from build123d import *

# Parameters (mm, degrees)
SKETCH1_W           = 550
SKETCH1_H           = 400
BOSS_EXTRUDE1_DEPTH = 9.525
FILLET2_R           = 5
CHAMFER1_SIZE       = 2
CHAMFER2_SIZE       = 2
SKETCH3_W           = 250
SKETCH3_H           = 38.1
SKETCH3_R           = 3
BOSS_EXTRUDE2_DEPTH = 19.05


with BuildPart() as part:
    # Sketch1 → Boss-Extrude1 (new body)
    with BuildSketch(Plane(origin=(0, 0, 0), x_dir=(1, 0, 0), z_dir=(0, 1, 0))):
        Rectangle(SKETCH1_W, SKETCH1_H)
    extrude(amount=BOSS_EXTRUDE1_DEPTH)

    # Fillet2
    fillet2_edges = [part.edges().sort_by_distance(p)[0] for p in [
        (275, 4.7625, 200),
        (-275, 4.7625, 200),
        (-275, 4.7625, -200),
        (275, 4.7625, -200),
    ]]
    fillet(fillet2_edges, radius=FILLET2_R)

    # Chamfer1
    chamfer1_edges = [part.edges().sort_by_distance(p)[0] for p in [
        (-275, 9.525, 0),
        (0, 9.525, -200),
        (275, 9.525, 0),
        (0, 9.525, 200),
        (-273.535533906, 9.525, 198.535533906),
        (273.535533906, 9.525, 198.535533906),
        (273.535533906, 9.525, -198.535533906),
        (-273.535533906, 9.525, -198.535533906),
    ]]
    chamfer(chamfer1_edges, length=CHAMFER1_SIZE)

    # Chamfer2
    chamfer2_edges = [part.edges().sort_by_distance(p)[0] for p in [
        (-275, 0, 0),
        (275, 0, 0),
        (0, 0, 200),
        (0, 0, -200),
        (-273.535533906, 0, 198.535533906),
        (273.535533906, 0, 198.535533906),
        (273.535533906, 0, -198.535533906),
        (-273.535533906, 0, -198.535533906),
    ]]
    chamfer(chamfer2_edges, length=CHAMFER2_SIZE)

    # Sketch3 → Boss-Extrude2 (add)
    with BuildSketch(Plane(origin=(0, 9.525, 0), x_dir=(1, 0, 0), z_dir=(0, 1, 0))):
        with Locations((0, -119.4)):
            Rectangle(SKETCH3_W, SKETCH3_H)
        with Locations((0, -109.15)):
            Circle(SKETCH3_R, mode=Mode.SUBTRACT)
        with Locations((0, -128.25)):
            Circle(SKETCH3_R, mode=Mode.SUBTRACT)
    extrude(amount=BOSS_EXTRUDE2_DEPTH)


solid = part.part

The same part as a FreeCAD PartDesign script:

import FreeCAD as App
import Part
import Sketcher

V = App.Vector
Q = App.Units.Quantity


def edges_at(feature, points):
    """Names of the edges that pass closest to the given points."""
    edges = feature.Shape.Edges
    near = lambda p: min(range(len(edges)), key=lambda i: edges[i].distToShape(Part.Vertex(*p))[0])
    return sorted({f"Edge{near(p) + 1}" for p in points})


def add_polygon(sketch, points):
    """Adds a closed chain of lines whose ends are joined by coincident constraints."""
    first, n = sketch.GeometryCount, len(points)
    for a, b in zip(points, points[1:] + points[:1]):
        sketch.addGeometry(Part.LineSegment(App.Vector(*a, 0), App.Vector(*b, 0)), False)
    for i in range(n):
        sketch.addConstraint(Sketcher.Constraint("Coincident", first + i, 2, first + (i + 1) % n, 1))

doc = App.newDocument("Part")
body = doc.addObject("PartDesign::Body", "Body")

# Sketch on XZ plane
sketch1 = body.newObject("Sketcher::SketchObject", "Sketch")
sketch1.AttachmentSupport = (doc.getObject("XZ_Plane"), [""])
sketch1.MapMode = "FlatFace"
add_polygon(sketch1, [(-275, -200), (-275, 200), (275, 200), (275, -200)])  # lines 0-3
sketch1.addConstraint([
    Sketcher.Constraint("Vertical", 0),
    Sketcher.Constraint("Horizontal", 1),
    Sketcher.Constraint("Vertical", 2),
    Sketcher.Constraint("Horizontal", 3),
    Sketcher.Constraint("Symmetric", 0, 2, 2, 2, -1, 1),
    Sketcher.Constraint("DistanceX", 1, 1, 1, 2, Q("550 mm")),
    Sketcher.Constraint("DistanceY", 0, 1, 0, 2, Q("400 mm")),
])
pad1 = body.newObject("PartDesign::Pad", "Pad")
pad1.Profile = sketch1
pad1.Length = 9.525
pad1.Reversed = True
doc.recompute()

fillet = body.newObject("PartDesign::Fillet", "Fillet")
fillet.Base = (pad1, edges_at(pad1, [
    (275, 4.763, 200),
    (-275, 4.763, 200),
    (-275, 4.763, -200),
    (275, 4.763, -200),
]))
fillet.Radius = 5
doc.recompute()

chamfer = body.newObject("PartDesign::Chamfer", "Chamfer")
chamfer.Base = (fillet, edges_at(fillet, [
    (-275, 9.525, 0),
    (0, 9.525, -200),
    (275, 9.525, 0),
    (0, 9.525, 200),
    (-273.536, 9.525, 198.536),
    (273.536, 9.525, 198.536),
    (273.536, 9.525, -198.536),
    (-273.536, 9.525, -198.536),
]))
chamfer.Size = 2
doc.recompute()

chamfer2 = body.newObject("PartDesign::Chamfer", "Chamfer001")
chamfer2.Base = (chamfer, edges_at(chamfer, [
    (-275, 0, 0),
    (275, 0, 0),
    (0, 0, 200),
    (0, 0, -200),
    (-273.536, 0, 198.536),
    (273.536, 0, 198.536),
    (273.536, 0, -198.536),
    (-273.536, 0, -198.536),
]))
chamfer2.Size = 2

# Sketch on XZ plane
sketch2 = body.newObject("Sketcher::SketchObject", "Sketch001")
sketch2.AttachmentSupport = (doc.getObject("XZ_Plane"), [""])
sketch2.MapMode = "FlatFace"
sketch2.AttachmentOffset = App.Placement(V(0, 0, -9.525), App.Rotation())
add_polygon(sketch2, [(-125, 100.3), (-125, 138.4), (125, 138.4), (125, 100.3)])  # lines 0-3
sketch2.addGeometry(Part.Circle(V(0, 128.2, 0), V(0, 0, 1), 3), False)  # 4
sketch2.addGeometry(Part.Circle(V(0, 109.2, 0), V(0, 0, 1), 3), False)  # 5
sketch2.addConstraint([
    Sketcher.Constraint("Vertical", 0),
    Sketcher.Constraint("Horizontal", 1),
    Sketcher.Constraint("Vertical", 2),
    Sketcher.Constraint("Horizontal", 3),
    Sketcher.Constraint("Equal", 4, 5),
    Sketcher.Constraint("PointOnObject", 4, 3, -2),
    Sketcher.Constraint("PointOnObject", 5, 3, -2),
    Sketcher.Constraint("Diameter", 4, Q("6 mm")),
    Sketcher.Constraint("DistanceX", 1, 1, 1, 2, Q("250 mm")),
    Sketcher.Constraint("DistanceY", 0, 1, 0, 2, Q("38.1 mm")),
    Sketcher.Constraint("DistanceX", 0, 2, -1, 1, Q("125 mm")),
    Sketcher.Constraint("DistanceY", 5, 3, 4, 3, Q("19.1 mm")),
    Sketcher.Constraint("DistanceY", 4, 3, 0, 2, Q("10.2 mm")),
    Sketcher.Constraint("DistanceY", -1, 1, 4, 3, Q("128.25 mm")),
])
pad2 = body.newObject("PartDesign::Pad", "Pad001")
pad2.Profile = sketch2
pad2.Length = 19.05
pad2.Reversed = True

doc.recompute()
